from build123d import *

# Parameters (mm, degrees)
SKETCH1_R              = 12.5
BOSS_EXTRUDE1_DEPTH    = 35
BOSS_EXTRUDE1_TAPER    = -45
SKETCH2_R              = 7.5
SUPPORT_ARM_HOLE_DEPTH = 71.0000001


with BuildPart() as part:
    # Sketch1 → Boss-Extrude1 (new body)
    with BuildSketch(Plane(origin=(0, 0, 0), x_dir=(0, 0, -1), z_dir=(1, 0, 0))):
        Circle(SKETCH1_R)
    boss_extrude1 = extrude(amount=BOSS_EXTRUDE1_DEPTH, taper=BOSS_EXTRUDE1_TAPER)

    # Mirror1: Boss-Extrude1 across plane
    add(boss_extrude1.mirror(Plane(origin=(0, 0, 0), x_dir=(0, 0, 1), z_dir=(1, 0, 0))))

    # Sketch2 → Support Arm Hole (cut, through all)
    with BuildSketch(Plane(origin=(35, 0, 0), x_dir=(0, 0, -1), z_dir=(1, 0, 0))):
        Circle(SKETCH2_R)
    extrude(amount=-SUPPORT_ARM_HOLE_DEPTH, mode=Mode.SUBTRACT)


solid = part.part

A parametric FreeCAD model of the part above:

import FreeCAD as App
import Part
import Sketcher

V = App.Vector
Q = App.Units.Quantity

doc = App.newDocument("Part")
body = doc.addObject("PartDesign::Body", "Body")

# Sketch on YZ plane
sketch1 = doc.addObject("Sketcher::SketchObject", "Sketch")
body.addObject(sketch1)
sketch1.AttachmentSupport = (doc.YZ_Plane, [""])
sketch1.MapMode = "FlatFace"
sketch1.addGeometry(Part.Circle(V(0, 0, 0), V(0, 0, 1), 12.5), False)
sketch1.addConstraint(Sketcher.Constraint("Coincident", 0, 3, -1, 1))
sketch1.addConstraint(Sketcher.Constraint("Diameter", 0, Q("25 mm")))
pad1 = doc.addObject("PartDesign::Pad", "Pad")
body.addObject(pad1)
pad1.Profile = sketch1
pad1.Length = 35
pad1.TaperAngle = 45
doc.recompute()

mirrored = doc.addObject("PartDesign::Mirrored", "Mirrored")
body.addObject(mirrored)
mirrored.Originals = [pad1]
mirrored.MirrorPlane = (doc.YZ_Plane, [""])
body.Tip = mirrored

# Sketch on YZ plane
sketch2 = doc.addObject("Sketcher::SketchObject", "Sketch001")
body.addObject(sketch2)
sketch2.AttachmentSupport = (doc.YZ_Plane, [""])
sketch2.MapMode = "FlatFace"
sketch2.AttachmentOffset = App.Placement(V(0, 0, 35), App.Rotation())
sketch2.addGeometry(Part.Circle(V(0, 0, 0), V(0, 0, 1), 7.5), False)
sketch2.addConstraint(Sketcher.Constraint("Coincident", 0, 3, -1, 1))
sketch2.addConstraint(Sketcher.Constraint("Diameter", 0, Q("15 mm")))
pocket1 = doc.addObject("PartDesign::Pocket", "Pocket")
body.addObject(pocket1)
pocket1.Profile = sketch2
pocket1.Type = "ThroughAll"

doc.recompute()
